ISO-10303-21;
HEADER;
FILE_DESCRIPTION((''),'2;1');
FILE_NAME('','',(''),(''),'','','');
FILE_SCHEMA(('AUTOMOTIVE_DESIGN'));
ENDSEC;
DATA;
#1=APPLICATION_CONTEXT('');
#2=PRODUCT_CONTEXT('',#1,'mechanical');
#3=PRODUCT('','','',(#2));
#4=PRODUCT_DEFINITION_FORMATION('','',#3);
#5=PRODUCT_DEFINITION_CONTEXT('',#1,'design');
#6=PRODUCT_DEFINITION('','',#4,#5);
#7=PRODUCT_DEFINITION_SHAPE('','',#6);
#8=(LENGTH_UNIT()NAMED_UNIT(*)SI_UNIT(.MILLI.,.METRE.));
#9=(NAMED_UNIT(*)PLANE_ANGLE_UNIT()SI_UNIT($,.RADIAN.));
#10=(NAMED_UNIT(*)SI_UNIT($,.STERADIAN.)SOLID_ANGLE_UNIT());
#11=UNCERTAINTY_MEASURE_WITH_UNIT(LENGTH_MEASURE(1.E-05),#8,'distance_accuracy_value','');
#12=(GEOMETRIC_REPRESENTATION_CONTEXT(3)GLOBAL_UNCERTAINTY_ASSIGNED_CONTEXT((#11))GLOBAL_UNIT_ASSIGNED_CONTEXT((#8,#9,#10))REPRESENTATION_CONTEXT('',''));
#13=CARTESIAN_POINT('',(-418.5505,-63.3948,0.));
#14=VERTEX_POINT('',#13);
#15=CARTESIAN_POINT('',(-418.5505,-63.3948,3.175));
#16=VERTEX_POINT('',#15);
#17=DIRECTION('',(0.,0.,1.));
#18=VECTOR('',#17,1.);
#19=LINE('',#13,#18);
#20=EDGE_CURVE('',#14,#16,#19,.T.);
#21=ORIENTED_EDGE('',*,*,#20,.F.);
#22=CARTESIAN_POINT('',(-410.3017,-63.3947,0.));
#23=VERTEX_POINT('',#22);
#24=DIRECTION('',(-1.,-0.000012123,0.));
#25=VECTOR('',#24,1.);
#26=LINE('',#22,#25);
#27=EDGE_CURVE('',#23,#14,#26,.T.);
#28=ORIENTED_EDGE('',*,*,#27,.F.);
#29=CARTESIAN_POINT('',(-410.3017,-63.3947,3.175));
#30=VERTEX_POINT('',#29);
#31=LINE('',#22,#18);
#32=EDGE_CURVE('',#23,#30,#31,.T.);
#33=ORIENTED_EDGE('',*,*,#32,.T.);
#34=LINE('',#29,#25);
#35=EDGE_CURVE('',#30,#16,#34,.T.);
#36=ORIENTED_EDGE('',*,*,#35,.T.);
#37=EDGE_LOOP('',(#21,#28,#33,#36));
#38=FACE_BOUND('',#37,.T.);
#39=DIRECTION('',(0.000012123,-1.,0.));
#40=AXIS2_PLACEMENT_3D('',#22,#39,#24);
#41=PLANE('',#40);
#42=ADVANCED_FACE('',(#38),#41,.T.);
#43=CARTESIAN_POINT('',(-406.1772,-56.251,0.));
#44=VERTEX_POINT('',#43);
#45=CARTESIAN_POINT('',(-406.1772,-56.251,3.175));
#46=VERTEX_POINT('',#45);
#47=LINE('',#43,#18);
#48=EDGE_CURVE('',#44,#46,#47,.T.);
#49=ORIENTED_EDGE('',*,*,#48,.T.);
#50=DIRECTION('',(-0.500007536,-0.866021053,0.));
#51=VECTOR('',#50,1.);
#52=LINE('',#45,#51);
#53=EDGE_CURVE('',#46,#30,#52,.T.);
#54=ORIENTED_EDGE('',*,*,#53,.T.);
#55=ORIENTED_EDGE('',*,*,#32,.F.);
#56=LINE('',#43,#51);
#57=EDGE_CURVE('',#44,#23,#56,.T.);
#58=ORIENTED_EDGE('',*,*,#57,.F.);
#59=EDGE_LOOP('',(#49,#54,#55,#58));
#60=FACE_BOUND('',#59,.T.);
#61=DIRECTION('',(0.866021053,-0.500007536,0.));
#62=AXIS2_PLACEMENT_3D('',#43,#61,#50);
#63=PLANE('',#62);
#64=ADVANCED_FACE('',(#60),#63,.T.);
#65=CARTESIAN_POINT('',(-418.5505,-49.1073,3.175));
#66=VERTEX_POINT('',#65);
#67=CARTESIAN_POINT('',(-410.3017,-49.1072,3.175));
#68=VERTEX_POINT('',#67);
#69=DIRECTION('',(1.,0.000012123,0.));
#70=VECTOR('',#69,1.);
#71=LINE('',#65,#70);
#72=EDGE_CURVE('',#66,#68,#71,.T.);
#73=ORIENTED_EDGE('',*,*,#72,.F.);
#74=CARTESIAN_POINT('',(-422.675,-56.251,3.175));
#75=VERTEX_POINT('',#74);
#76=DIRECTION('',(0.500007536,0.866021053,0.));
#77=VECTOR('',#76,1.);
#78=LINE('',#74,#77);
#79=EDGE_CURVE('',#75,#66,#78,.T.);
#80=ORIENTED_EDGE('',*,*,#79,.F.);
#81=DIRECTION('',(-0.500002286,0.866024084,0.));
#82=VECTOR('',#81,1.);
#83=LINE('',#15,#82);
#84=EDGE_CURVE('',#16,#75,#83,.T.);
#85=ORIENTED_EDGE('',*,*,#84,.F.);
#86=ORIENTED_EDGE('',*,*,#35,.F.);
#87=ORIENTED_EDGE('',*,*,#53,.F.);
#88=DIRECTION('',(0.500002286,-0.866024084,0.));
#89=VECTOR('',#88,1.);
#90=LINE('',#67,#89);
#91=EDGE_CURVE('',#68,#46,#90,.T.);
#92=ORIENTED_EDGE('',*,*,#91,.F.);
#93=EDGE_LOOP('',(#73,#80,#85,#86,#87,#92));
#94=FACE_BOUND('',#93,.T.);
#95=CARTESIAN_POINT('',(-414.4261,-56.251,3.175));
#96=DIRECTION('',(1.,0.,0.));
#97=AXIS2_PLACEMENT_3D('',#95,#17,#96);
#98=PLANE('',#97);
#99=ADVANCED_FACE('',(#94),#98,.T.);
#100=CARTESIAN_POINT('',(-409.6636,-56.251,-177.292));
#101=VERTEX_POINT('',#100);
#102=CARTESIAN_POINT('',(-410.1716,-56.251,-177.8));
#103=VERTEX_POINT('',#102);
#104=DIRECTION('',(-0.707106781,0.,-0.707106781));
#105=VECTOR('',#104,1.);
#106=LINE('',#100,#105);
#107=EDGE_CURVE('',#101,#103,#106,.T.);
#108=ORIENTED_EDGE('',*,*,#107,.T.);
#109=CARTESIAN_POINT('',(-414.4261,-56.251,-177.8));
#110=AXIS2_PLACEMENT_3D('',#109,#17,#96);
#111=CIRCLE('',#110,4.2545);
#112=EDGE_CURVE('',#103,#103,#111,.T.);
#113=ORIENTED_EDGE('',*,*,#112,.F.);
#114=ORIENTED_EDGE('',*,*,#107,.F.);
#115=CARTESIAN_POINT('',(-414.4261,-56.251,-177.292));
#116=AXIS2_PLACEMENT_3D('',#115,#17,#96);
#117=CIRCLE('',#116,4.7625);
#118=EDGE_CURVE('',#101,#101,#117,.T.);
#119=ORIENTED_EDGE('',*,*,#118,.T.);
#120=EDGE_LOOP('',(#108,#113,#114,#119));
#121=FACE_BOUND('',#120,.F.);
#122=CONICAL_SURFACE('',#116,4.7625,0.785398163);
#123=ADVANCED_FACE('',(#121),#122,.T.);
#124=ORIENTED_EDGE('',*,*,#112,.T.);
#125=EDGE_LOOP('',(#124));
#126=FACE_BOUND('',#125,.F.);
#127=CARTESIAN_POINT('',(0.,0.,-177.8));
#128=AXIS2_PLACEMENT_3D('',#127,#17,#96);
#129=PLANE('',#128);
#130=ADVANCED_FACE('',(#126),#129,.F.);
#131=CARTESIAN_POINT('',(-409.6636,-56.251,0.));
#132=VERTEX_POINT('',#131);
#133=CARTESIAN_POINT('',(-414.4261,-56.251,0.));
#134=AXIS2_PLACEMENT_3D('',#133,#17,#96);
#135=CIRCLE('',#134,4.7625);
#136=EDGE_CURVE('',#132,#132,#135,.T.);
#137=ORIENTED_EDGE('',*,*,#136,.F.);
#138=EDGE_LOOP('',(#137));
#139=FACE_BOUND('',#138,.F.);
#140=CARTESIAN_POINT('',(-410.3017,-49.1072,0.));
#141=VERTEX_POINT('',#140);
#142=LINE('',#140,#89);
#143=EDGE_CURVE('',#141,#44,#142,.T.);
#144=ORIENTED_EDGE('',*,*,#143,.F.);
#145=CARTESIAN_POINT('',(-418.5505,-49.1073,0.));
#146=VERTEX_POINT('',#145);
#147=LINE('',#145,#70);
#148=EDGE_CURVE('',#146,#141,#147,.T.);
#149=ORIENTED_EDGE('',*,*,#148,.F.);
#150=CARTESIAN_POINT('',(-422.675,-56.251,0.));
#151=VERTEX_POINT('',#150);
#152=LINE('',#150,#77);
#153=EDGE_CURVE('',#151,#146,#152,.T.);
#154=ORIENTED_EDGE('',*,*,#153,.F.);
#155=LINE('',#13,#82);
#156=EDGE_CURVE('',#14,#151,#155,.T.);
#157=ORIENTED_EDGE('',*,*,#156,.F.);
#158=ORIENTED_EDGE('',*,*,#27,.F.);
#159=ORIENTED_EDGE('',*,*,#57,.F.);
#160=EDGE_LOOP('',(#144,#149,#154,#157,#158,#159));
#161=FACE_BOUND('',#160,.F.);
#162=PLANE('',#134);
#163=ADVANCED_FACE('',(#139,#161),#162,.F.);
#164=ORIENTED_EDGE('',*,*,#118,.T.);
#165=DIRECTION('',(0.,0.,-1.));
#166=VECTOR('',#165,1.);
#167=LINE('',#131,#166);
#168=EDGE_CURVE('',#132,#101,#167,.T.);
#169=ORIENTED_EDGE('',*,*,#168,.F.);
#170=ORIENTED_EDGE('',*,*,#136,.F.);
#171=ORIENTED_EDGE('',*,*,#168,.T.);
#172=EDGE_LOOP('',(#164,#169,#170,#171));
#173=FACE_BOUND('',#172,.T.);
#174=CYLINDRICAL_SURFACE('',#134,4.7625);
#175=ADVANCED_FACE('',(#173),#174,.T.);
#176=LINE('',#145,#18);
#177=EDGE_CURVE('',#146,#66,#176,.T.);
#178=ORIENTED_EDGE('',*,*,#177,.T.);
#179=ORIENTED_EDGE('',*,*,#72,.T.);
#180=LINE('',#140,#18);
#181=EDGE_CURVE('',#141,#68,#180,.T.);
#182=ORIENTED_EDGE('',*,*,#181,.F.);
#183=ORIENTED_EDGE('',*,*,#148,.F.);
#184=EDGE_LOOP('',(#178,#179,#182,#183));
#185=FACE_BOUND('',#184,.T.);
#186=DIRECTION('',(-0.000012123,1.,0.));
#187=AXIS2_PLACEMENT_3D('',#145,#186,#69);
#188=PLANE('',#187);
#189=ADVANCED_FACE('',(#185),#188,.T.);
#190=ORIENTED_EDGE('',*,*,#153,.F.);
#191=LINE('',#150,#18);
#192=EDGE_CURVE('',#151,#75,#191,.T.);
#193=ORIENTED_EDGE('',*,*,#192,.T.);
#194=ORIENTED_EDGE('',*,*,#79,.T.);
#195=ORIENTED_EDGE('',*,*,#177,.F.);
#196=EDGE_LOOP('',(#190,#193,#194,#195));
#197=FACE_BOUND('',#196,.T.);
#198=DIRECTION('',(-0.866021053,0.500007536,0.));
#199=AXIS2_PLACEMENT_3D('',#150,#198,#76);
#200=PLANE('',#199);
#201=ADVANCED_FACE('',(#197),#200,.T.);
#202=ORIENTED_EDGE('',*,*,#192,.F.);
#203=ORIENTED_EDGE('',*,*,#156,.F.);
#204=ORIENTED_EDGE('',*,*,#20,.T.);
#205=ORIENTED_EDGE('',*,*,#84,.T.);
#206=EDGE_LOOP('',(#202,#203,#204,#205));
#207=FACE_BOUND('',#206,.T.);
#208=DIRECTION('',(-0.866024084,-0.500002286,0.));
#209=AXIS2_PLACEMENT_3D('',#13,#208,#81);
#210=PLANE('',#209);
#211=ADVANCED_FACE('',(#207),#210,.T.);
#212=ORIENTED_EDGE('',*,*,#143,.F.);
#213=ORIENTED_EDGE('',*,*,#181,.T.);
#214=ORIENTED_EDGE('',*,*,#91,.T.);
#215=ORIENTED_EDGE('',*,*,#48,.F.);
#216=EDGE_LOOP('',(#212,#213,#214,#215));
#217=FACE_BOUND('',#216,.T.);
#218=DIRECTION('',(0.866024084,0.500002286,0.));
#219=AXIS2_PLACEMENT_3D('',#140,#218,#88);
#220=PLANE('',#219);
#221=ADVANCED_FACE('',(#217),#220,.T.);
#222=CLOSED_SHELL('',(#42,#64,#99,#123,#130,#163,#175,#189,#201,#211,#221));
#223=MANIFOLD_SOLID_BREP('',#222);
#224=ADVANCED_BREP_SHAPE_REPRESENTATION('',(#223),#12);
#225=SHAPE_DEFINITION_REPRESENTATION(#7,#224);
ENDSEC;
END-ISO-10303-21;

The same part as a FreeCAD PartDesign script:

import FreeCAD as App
import Part
import Sketcher
Q = App.Units.Quantity


def edges_at(feature, points):
    """Names of the edges that pass closest to the given points."""
    edges = feature.Shape.Edges
    near = lambda p: min(range(len(edges)), key=lambda i: edges[i].distToShape(Part.Vertex(*p))[0])
    return sorted({f"Edge{near(p) + 1}" for p in points})


def add_polygon(sketch, points):
    """Adds a closed chain of lines whose ends are joined by coincident constraints."""
    first, n = sketch.GeometryCount, len(points)
    for a, b in zip(points, points[1:] + points[:1]):
        sketch.addGeometry(Part.LineSegment(App.Vector(*a, 0), App.Vector(*b, 0)), False)
    for i in range(n):
        sketch.addConstraint(Sketcher.Constraint("Coincident", first + i, 2, first + (i + 1) % n, 1))

doc = App.newDocument("Part")
body = doc.addObject("PartDesign::Body", "Body")

sketch1 = body.newObject("Sketcher::SketchObject", "Sketch")
sketch1.AttachmentSupport = (doc.getObject("XY_Plane"), [""])
sketch1.MapMode = "FlatFace"
sketch1.addGeometry(Part.Circle(App.Vector(-414.4, -56.3, 0), App.Vector(0, 0, 1), 4.8), False)
sketch1.addConstraint([
    Sketcher.Constraint("Diameter", 0, Q("0.375 in")),
    Sketcher.Constraint("DistanceX", 0, 3, -1, 1, Q("16.316 in")),
    Sketcher.Constraint("DistanceY", 0, 3, -1, 1, Q("2.2146 in")),
])
pad1 = body.newObject("PartDesign::Pad", "Pad")
pad1.Profile = sketch1
pad1.Length = Q("7 in")
pad1.Reversed = True

sketch2 = body.newObject("Sketcher::SketchObject", "Sketch001")
sketch2.AttachmentSupport = (doc.getObject("XY_Plane"), [""])
sketch2.MapMode = "FlatFace"
add_polygon(sketch2, [(-419, -49), (-423, -56), (-419, -63), (-410, -63), (-406, -56), (-410, -49)])
sketch2.addConstraint([
    Sketcher.Constraint("Horizontal", 2),
    Sketcher.Constraint("Horizontal", 5),
    Sketcher.Constraint("Parallel", 0, 3),
    Sketcher.Constraint("Parallel", 1, 4),
    Sketcher.Constraint("Horizontal", 0, 2, 3, 2),
    Sketcher.Constraint("Vertical", 2, 2, 4, 2),
    Sketcher.Constraint("Vertical", 1, 2, 5, 2),
    Sketcher.Constraint("Angle", 0, Q("-120.0005 deg")),
    Sketcher.Constraint("DistanceY", 2, 2, 4, 2, Q("0.5625 in")),
    Sketcher.Constraint("DistanceX", 2, 1, 2, 2, 8.2488),
    Sketcher.Constraint("DistanceY", 0, 2, -1, 1, Q("2.2146 in")),
    Sketcher.Constraint("DistanceX", 2, 2, -1, 1, Q("16.1536 in")),
])
pad2 = body.newObject("PartDesign::Pad", "Pad001")
pad2.Profile = sketch2
pad2.Length = Q("0.125 in")
doc.recompute()

chamfer = body.newObject("PartDesign::Chamfer", "Chamfer")
chamfer.Base = (pad2, edges_at(pad2, [(-419.189, -56.251, -177.8)]))
chamfer.Size = Q("0.02 in")

doc.recompute()
